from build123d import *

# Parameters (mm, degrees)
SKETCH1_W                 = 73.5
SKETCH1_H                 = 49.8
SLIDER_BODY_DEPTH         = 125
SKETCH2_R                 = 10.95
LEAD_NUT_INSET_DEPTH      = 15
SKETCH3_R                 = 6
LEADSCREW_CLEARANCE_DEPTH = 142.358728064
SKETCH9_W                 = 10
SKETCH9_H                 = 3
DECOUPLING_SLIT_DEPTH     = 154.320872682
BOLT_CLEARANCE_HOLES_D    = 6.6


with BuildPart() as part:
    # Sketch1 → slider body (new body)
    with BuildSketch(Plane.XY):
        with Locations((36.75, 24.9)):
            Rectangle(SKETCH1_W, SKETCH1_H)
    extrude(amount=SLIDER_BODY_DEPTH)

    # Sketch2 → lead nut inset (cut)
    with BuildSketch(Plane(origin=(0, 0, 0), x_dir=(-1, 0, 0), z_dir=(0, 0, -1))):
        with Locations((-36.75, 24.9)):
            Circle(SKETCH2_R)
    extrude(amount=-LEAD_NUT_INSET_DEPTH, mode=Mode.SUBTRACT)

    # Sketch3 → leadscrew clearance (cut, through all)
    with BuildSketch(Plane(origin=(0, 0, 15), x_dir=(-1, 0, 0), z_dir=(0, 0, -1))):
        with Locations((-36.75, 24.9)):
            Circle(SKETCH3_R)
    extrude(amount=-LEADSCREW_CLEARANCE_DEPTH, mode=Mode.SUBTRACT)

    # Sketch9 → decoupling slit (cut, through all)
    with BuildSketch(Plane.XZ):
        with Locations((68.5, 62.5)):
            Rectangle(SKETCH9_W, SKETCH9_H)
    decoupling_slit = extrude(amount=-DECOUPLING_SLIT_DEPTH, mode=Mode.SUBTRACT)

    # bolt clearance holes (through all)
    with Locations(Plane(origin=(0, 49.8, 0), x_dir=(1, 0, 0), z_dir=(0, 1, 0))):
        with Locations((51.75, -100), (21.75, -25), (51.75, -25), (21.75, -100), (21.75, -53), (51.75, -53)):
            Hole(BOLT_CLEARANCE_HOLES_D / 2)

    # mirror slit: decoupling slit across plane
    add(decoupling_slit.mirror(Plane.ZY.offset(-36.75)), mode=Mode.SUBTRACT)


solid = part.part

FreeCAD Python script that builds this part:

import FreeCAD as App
import Part
import Sketcher
Q = App.Units.Quantity

doc = App.newDocument("Part")
params = doc.addObject("Spreadsheet::Sheet", "Params")
for row, (alias, value) in enumerate([
    ("sketch1_width", "73.5 mm"),
    ("sketch1_height", "49.8 mm"),
    ("pad1_length", "125 mm"),
    ("sketch2_diameter", "21.9 mm"),
    ("pocket1_length", "15 mm"),
    ("sketch3_diameter", "12 mm"),
    ("sketch4_width", "10 mm"),
    ("sketch4_height", "3 mm"),
    ("sketch5_diameter", "6.6 mm"),
    ("hole_diameter", "6.6 mm"),
], start=1):
    params.set(f"A{row}", alias)
    params.set(f"B{row}", "=" + value)
    params.setAlias(f"B{row}", alias)

body = doc.addObject("PartDesign::Body", "Body")

sketch1 = doc.addObject("Sketcher::SketchObject", "Sketch")
body.addObject(sketch1)
sketch1.AttachmentSupport = (doc.XY_Plane, [""])
sketch1.MapMode = "FlatFace"
sketch1.addGeometry([
    Part.LineSegment(App.Vector(0, 50, 0), App.Vector(0, 0, 0)),
    Part.LineSegment(App.Vector(0, 0, 0), App.Vector(74, 0, 0)),
    Part.LineSegment(App.Vector(74, 0, 0), App.Vector(74, 50, 0)),
    Part.LineSegment(App.Vector(74, 50, 0), App.Vector(0, 50, 0)),
], False)
sketch1.addConstraint([
    Sketcher.Constraint("Coincident", 0, 2, 1, 1),
    Sketcher.Constraint("Coincident", 1, 2, 2, 1),
    Sketcher.Constraint("Coincident", 2, 2, 3, 1),
    Sketcher.Constraint("Coincident", 3, 2, 0, 1),
    Sketcher.Constraint("Vertical", 0),
    Sketcher.Constraint("Horizontal", 1),
    Sketcher.Constraint("Vertical", 2),
    Sketcher.Constraint("Horizontal", 3),
    Sketcher.Constraint("Coincident", 0, 2, -1, 1),
    Sketcher.Constraint("DistanceX", 1, 1, 1, 2, Q("73.5 mm")),
    Sketcher.Constraint("DistanceY", 0, 2, 0, 1, Q("49.8 mm")),
])
sketch1.setExpression("Constraints[9]", "Params.sketch1_width")
sketch1.setExpression("Constraints[10]", "Params.sketch1_height")
pad1 = doc.addObject("PartDesign::Pad", "Pad")
body.addObject(pad1)
pad1.Profile = sketch1
pad1.setExpression("Length", "Params.pad1_length")

sketch2 = doc.addObject("Sketcher::SketchObject", "Sketch001")
body.addObject(sketch2)
sketch2.AttachmentSupport = (doc.XY_Plane, [""])
sketch2.MapMode = "FlatFace"
sketch2.addGeometry(Part.Circle(App.Vector(37, 25, 0), App.Vector(0, 0, 1), 11), False)
sketch2.addConstraint([
    Sketcher.Constraint("Diameter", 0, Q("21.9 mm")),
    Sketcher.Constraint("DistanceY", -1, 1, 0, 3, Q("24.9 mm")),
    Sketcher.Constraint("DistanceX", -1, 1, 0, 3, Q("36.75 mm")),
])
sketch2.setExpression("Constraints[0]", "Params.sketch2_diameter")
pocket1 = doc.addObject("PartDesign::Pocket", "Pocket")
body.addObject(pocket1)
pocket1.Profile = sketch2
pocket1.setExpression("Length", "Params.pocket1_length")
pocket1.Reversed = True

sketch3 = doc.addObject("Sketcher::SketchObject", "Sketch002")
body.addObject(sketch3)
sketch3.AttachmentSupport = (doc.XY_Plane, [""])
sketch3.MapMode = "FlatFace"
sketch3.AttachmentOffset = App.Placement(App.Vector(0, 0, 15), App.Rotation())
sketch3.addGeometry(Part.Circle(App.Vector(37, 25, 0), App.Vector(0, 0, 1), 6), False)
sketch3.addConstraint([
    Sketcher.Constraint("Diameter", 0, Q("12 mm")),
    Sketcher.Constraint("DistanceY", -1, 1, 0, 3, Q("24.9 mm")),
    Sketcher.Constraint("DistanceX", -1, 1, 0, 3, Q("36.75 mm")),
])
sketch3.setExpression("Constraints[0]", "Params.sketch3_diameter")
pocket2 = doc.addObject("PartDesign::Pocket", "Pocket001")
body.addObject(pocket2)
pocket2.Profile = sketch3
pocket2.Type = "ThroughAll"
pocket2.Reversed = True

sketch4 = doc.addObject("Sketcher::SketchObject", "Sketch003")
body.addObject(sketch4)
sketch4.AttachmentSupport = (doc.XZ_Plane, [""])
sketch4.MapMode = "FlatFace"
sketch4.addGeometry([
    Part.LineSegment(App.Vector(63.5, 64, 0), App.Vector(63.5, 61, 0)),
    Part.LineSegment(App.Vector(63.5, 61, 0), App.Vector(73.5, 61, 0)),
    Part.LineSegment(App.Vector(73.5, 61, 0), App.Vector(73.5, 64, 0)),
    Part.LineSegment(App.Vector(73.5, 64, 0), App.Vector(63.5, 64, 0)),
], False)
sketch4.addConstraint([
    Sketcher.Constraint("Coincident", 0, 2, 1, 1),
    Sketcher.Constraint("Coincident", 1, 2, 2, 1),
    Sketcher.Constraint("Coincident", 2, 2, 3, 1),
    Sketcher.Constraint("Coincident", 3, 2, 0, 1),
    Sketcher.Constraint("Vertical", 0),
    Sketcher.Constraint("Horizontal", 1),
    Sketcher.Constraint("Vertical", 2),
    Sketcher.Constraint("Horizontal", 3),
    Sketcher.Constraint("DistanceX", 1, 1, 1, 2, Q("10 mm")),
    Sketcher.Constraint("DistanceY", 0, 2, 0, 1, Q("3 mm")),
    Sketcher.Constraint("DistanceY", -1, 1, 0, 2, Q("61 mm")),
    Sketcher.Constraint("DistanceX", -1, 1, 0, 2, Q("63.5 mm")),
])
sketch4.setExpression("Constraints[8]", "Params.sketch4_width")
sketch4.setExpression("Constraints[9]", "Params.sketch4_height")
pocket3 = doc.addObject("PartDesign::Pocket", "Pocket002")
body.addObject(pocket3)
pocket3.Profile = sketch4
pocket3.Type = "ThroughAll"

sketch5 = doc.addObject("Sketcher::SketchObject", "Sketch004")
body.addObject(sketch5)
sketch5.AttachmentSupport = (doc.XZ_Plane, [""])
sketch5.MapMode = "FlatFace"
sketch5.AttachmentOffset = App.Placement(App.Vector(0, 0, -49.8), App.Rotation())
sketch5.addGeometry([
    Part.Circle(App.Vector(51.8, 100, 0), App.Vector(0, 0, 1), 3.3),
    Part.Circle(App.Vector(21.8, 25, 0), App.Vector(0, 0, 1), 3.3),
    Part.Circle(App.Vector(51.8, 25, 0), App.Vector(0, 0, 1), 3.3),
    Part.Circle(App.Vector(21.8, 100, 0), App.Vector(0, 0, 1), 3.3),
    Part.Circle(App.Vector(21.8, 53, 0), App.Vector(0, 0, 1), 3.3),
    Part.Circle(App.Vector(51.8, 53, 0), App.Vector(0, 0, 1), 3.3),
], False)
sketch5.addConstraint([
    Sketcher.Constraint("Equal", 0, 1),
    Sketcher.Constraint("Equal", 1, 2),
    Sketcher.Constraint("Equal", 2, 3),
    Sketcher.Constraint("Equal", 3, 4),
    Sketcher.Constraint("Equal", 4, 5),
    Sketcher.Constraint("Horizontal", 1, 3, 2, 3),
    Sketcher.Constraint("Horizontal", 0, 3, 3, 3),
    Sketcher.Constraint("Horizontal", 4, 3, 5, 3),
    Sketcher.Constraint("Vertical", 0, 3, 2, 3),
    Sketcher.Constraint("Vertical", 1, 3, 3, 3),
    Sketcher.Constraint("Vertical", 3, 3, 4, 3),
    Sketcher.Constraint("Vertical", 2, 3, 5, 3),
    Sketcher.Constraint("Diameter", 0, Q("6.6 mm")),
    Sketcher.Constraint("DistanceY", -1, 1, 0, 3, Q("100 mm")),
    Sketcher.Constraint("DistanceY", -1, 1, 1, 3, Q("25 mm")),
    Sketcher.Constraint("DistanceY", -1, 1, 4, 3, Q("53 mm")),
    Sketcher.Constraint("DistanceX", 1, 3, 0, 3, Q("30 mm")),
    Sketcher.Constraint("DistanceX", -1, 1, 0, 3, Q("51.75 mm")),
])
sketch5.setExpression("Constraints[12]", "Params.sketch5_diameter")
doc.recompute()
hole = doc.addObject("PartDesign::Hole", "Hole")
body.addObject(hole)
hole.Profile = sketch5
hole.ThreadType = "None"
hole.setExpression("Diameter", "Params.hole_diameter")
hole.DepthType = "ThroughAll"
hole.Reversed = True
doc.recompute()

datumplane = doc.addObject("PartDesign::Plane", "DatumPlane")
body.addObject(datumplane)
datumplane.AttachmentSupport = (doc.YZ_Plane, [""])
datumplane.MapMode = "FlatFace"
datumplane.AttachmentOffset = App.Placement(App.Vector(0, 0, 36.75), App.Rotation())
mirrored = doc.addObject("PartDesign::Mirrored", "Mirrored")
body.addObject(mirrored)
mirrored.Originals = [pocket3]
mirrored.MirrorPlane = (datumplane, [""])
body.Tip = mirrored

doc.recompute()
